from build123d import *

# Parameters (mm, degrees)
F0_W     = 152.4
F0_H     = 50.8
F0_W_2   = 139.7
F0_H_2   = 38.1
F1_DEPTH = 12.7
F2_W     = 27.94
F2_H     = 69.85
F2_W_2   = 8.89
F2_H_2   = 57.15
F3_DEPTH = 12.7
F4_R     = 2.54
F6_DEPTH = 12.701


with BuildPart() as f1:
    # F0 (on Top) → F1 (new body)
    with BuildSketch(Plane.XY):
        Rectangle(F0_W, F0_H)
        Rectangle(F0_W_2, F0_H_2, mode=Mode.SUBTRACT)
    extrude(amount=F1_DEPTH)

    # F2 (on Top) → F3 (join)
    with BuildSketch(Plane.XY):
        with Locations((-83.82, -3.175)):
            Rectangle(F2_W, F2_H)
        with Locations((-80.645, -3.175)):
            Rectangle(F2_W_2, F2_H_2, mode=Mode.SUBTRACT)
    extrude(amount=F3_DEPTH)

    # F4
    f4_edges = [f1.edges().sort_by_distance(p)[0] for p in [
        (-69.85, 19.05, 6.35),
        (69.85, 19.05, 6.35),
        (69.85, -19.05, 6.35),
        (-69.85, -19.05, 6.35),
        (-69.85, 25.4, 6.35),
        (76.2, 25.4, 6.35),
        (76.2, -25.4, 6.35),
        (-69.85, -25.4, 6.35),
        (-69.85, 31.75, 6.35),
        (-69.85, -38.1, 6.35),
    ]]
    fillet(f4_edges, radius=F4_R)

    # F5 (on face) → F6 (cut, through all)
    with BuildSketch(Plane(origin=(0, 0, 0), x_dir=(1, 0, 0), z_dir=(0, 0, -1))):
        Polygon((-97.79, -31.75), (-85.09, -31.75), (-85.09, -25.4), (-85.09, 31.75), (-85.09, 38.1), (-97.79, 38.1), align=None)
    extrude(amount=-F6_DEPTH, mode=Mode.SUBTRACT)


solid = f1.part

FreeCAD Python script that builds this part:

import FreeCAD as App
import Part
import Sketcher
from FreeCAD import Vector
Q = App.Units.Quantity


def edges_at(feature, points):
    """Names of the edges that pass closest to the given points."""
    edges = feature.Shape.Edges
    near = lambda p: min(range(len(edges)), key=lambda i: edges[i].distToShape(Part.Vertex(*p))[0])
    return sorted({f"Edge{near(p) + 1}" for p in points})

doc = App.newDocument("Part")
params = doc.addObject("Spreadsheet::Sheet", "Params")
for row, (alias, value) in enumerate([
    ("sketch1_width", "6 in"),
    ("sketch1_height", "2 in"),
    ("sketch1_width2", "5.5 in"),
    ("sketch1_height2", "1.5 in"),
    ("pad1_length", "0.5 in"),
    ("sketch2_width", "1.1 in"),
    ("sketch2_width2", "0.35 in"),
    ("sketch2_height", "2.75 in"),
    ("sketch2_height2", "2.25 in"),
    ("pad2_length", "0.5 in"),
    ("fillet_radius", "0.1 in"),
    ("sketch3_width", "0.5 in"),
    ("sketch3_height", "2.75 in"),
], start=1):
    params.set(f"A{row}", alias)
    params.set(f"B{row}", "=" + value)
    params.setAlias(f"B{row}", alias)

body = doc.addObject("PartDesign::Body", "Body")

# Sketch on XY plane
sketch1 = doc.addObject("Sketcher::SketchObject", "Sketch")
body.addObject(sketch1)
sketch1.AttachmentSupport = (doc.XY_Plane, [""])
sketch1.MapMode = "FlatFace"
sketch1.addGeometry([
    Part.LineSegment(Vector(-76, 25, 0), Vector(-76, -25, 0)),  # 0
    Part.LineSegment(Vector(-76, -25, 0), Vector(76, -25, 0)),  # 1
    Part.LineSegment(Vector(76, -25, 0), Vector(76, 25, 0)),  # 2
    Part.LineSegment(Vector(76, 25, 0), Vector(-76, 25, 0)),  # 3
    Part.LineSegment(Vector(70, -19, 0), Vector(-70, -19, 0)),  # 4
    Part.LineSegment(Vector(-70, -19, 0), Vector(-70, 19, 0)),  # 5
    Part.LineSegment(Vector(-70, 19, 0), Vector(70, 19, 0)),  # 6
    Part.LineSegment(Vector(70, 19, 0), Vector(70, -19, 0)),  # 7
], False)
sketch1.addConstraint([
    Sketcher.Constraint("Coincident", 0, 2, 1, 1),
    Sketcher.Constraint("Coincident", 1, 2, 2, 1),
    Sketcher.Constraint("Coincident", 2, 2, 3, 1),
    Sketcher.Constraint("Coincident", 3, 2, 0, 1),
    Sketcher.Constraint("Coincident", 4, 2, 5, 1),
    Sketcher.Constraint("Coincident", 5, 2, 6, 1),
    Sketcher.Constraint("Coincident", 6, 2, 7, 1),
    Sketcher.Constraint("Coincident", 7, 2, 4, 1),
    Sketcher.Constraint("Vertical", 0),
    Sketcher.Constraint("Horizontal", 1),
    Sketcher.Constraint("Vertical", 2),
    Sketcher.Constraint("Horizontal", 3),
    Sketcher.Constraint("Horizontal", 4),
    Sketcher.Constraint("Vertical", 5),
    Sketcher.Constraint("Horizontal", 6),
    Sketcher.Constraint("Vertical", 7),
    Sketcher.Constraint("Symmetric", 0, 2, 2, 2, -1, 1),
    Sketcher.Constraint("Symmetric", 4, 2, 6, 2, -1, 1),
    Sketcher.Constraint("DistanceX", 1, 1, 1, 2, Q("6 in")),
    Sketcher.Constraint("DistanceY", 0, 2, 0, 1, Q("2 in")),
    Sketcher.Constraint("DistanceX", 4, 2, 4, 1, Q("5.5 in")),
    Sketcher.Constraint("DistanceY", 5, 1, 5, 2, Q("1.5 in")),
])
sketch1.setExpression("Constraints[18]", "Params.sketch1_width")
sketch1.setExpression("Constraints[19]", "Params.sketch1_height")
sketch1.setExpression("Constraints[20]", "Params.sketch1_width2")
sketch1.setExpression("Constraints[21]", "Params.sketch1_height2")
pad1 = doc.addObject("PartDesign::Pad", "Pad")
body.addObject(pad1)
pad1.Profile = sketch1
pad1.setExpression("Length", "Params.pad1_length")

# Sketch on XY plane
sketch2 = doc.addObject("Sketcher::SketchObject", "Sketch001")
body.addObject(sketch2)
sketch2.AttachmentSupport = (doc.XY_Plane, [""])
sketch2.MapMode = "FlatFace"
sketch2.addGeometry([
    Part.LineSegment(Vector(-98, 32, 0), Vector(-98, -38, 0)),  # 0
    Part.LineSegment(Vector(-98, -38, 0), Vector(-70, -38, 0)),  # 1
    Part.LineSegment(Vector(-70, -38, 0), Vector(-70, 32, 0)),  # 2
    Part.LineSegment(Vector(-70, 32, 0), Vector(-98, 32, 0)),  # 3
    Part.LineSegment(Vector(-76, -32, 0), Vector(-85, -32, 0)),  # 4
    Part.LineSegment(Vector(-85, -32, 0), Vector(-85, 25, 0)),  # 5
    Part.LineSegment(Vector(-85, 25, 0), Vector(-76, 25, 0)),  # 6
    Part.LineSegment(Vector(-76, 25, 0), Vector(-76, -32, 0)),  # 7
], False)
sketch2.addConstraint([
    Sketcher.Constraint("Coincident", 0, 2, 1, 1),
    Sketcher.Constraint("Coincident", 1, 2, 2, 1),
    Sketcher.Constraint("Coincident", 2, 2, 3, 1),
    Sketcher.Constraint("Coincident", 3, 2, 0, 1),
    Sketcher.Constraint("Coincident", 4, 2, 5, 1),
    Sketcher.Constraint("Coincident", 5, 2, 6, 1),
    Sketcher.Constraint("Coincident", 6, 2, 7, 1),
    Sketcher.Constraint("Coincident", 7, 2, 4, 1),
    Sketcher.Constraint("Vertical", 0),
    Sketcher.Constraint("Horizontal", 1),
    Sketcher.Constraint("Vertical", 2),
    Sketcher.Constraint("Horizontal", 3),
    Sketcher.Constraint("Horizontal", 4),
    Sketcher.Constraint("Vertical", 5),
    Sketcher.Constraint("Horizontal", 6),
    Sketcher.Constraint("Vertical", 7),
    Sketcher.Constraint("DistanceX", 1, 1, 1, 2, Q("1.1 in")),
    Sketcher.Constraint("DistanceY", -1, 1, 5, 2, Q("1 in")),
    Sketcher.Constraint("DistanceX", 6, 2, -1, 1, Q("3 in")),
    Sketcher.Constraint("DistanceX", 4, 2, 4, 1, Q("0.35 in")),
    Sketcher.Constraint("DistanceY", 0, 2, 0, 1, Q("2.75 in")),
    Sketcher.Constraint("DistanceY", 5, 1, 5, 2, Q("2.25 in")),
    Sketcher.Constraint("DistanceY", 0, 2, -1, 1, Q("1.5 in")),
    Sketcher.Constraint("DistanceX", 0, 2, 4, 2, Q("0.5 in")),
])
sketch2.setExpression("Constraints[16]", "Params.sketch2_width")
sketch2.setExpression("Constraints[19]", "Params.sketch2_width2")
sketch2.setExpression("Constraints[20]", "Params.sketch2_height")
sketch2.setExpression("Constraints[21]", "Params.sketch2_height2")
pad2 = doc.addObject("PartDesign::Pad", "Pad001")
body.addObject(pad2)
pad2.Profile = sketch2
pad2.setExpression("Length", "Params.pad2_length")
doc.recompute()

fillet = doc.addObject("PartDesign::Fillet", "Fillet")
body.addObject(fillet)
fillet.Base = (pad2, edges_at(pad2, [
    (-69.85, 19.05, 6.35),
    (69.85, 19.05, 6.35),
    (69.85, -19.05, 6.35),
    (-69.85, -19.05, 6.35),
    (-69.85, 25.4, 6.35),
    (76.2, 25.4, 6.35),
    (76.2, -25.4, 6.35),
    (-69.85, -25.4, 6.35),
    (-69.85, 31.75, 6.35),
    (-69.85, -38.1, 6.35),
]))
fillet.setExpression("Radius", "Params.fillet_radius")

# Sketch on XY plane
sketch3 = doc.addObject("Sketcher::SketchObject", "Sketch002")
body.addObject(sketch3)
sketch3.AttachmentSupport = (doc.XY_Plane, [""])
sketch3.MapMode = "FlatFace"
sketch3.addGeometry([
    Part.LineSegment(Vector(-98, 32, 0), Vector(-85, 32, 0)),
    Part.LineSegment(Vector(-85, 32, 0), Vector(-85, -38, 0)),
    Part.LineSegment(Vector(-85, -38, 0), Vector(-98, -38, 0)),
    Part.LineSegment(Vector(-98, -38, 0), Vector(-98, 32, 0)),
], False)
sketch3.addConstraint([
    Sketcher.Constraint("Coincident", 0, 2, 1, 1),
    Sketcher.Constraint("Coincident", 1, 2, 2, 1),
    Sketcher.Constraint("Coincident", 2, 2, 3, 1),
    Sketcher.Constraint("Coincident", 3, 2, 0, 1),
    Sketcher.Constraint("Horizontal", 0),
    Sketcher.Constraint("Vertical", 1),
    Sketcher.Constraint("Horizontal", 2),
    Sketcher.Constraint("Vertical", 3),
    Sketcher.Constraint("DistanceX", 0, 1, 0, 2, Q("0.5 in")),
    Sketcher.Constraint("DistanceY", 1, 2, 1, 1, Q("2.75 in")),
    Sketcher.Constraint("DistanceY", 1, 2, -1, 1, Q("1.5 in")),
    Sketcher.Constraint("DistanceX", 0, 2, -1, 1, Q("3.35 in")),
])
sketch3.setExpression("Constraints[8]", "Params.sketch3_width")
sketch3.setExpression("Constraints[9]", "Params.sketch3_height")
pocket1 = doc.addObject("PartDesign::Pocket", "Pocket")
body.addObject(pocket1)
pocket1.Profile = sketch3
pocket1.Type = "ThroughAll"
pocket1.Reversed = True

doc.recompute()
